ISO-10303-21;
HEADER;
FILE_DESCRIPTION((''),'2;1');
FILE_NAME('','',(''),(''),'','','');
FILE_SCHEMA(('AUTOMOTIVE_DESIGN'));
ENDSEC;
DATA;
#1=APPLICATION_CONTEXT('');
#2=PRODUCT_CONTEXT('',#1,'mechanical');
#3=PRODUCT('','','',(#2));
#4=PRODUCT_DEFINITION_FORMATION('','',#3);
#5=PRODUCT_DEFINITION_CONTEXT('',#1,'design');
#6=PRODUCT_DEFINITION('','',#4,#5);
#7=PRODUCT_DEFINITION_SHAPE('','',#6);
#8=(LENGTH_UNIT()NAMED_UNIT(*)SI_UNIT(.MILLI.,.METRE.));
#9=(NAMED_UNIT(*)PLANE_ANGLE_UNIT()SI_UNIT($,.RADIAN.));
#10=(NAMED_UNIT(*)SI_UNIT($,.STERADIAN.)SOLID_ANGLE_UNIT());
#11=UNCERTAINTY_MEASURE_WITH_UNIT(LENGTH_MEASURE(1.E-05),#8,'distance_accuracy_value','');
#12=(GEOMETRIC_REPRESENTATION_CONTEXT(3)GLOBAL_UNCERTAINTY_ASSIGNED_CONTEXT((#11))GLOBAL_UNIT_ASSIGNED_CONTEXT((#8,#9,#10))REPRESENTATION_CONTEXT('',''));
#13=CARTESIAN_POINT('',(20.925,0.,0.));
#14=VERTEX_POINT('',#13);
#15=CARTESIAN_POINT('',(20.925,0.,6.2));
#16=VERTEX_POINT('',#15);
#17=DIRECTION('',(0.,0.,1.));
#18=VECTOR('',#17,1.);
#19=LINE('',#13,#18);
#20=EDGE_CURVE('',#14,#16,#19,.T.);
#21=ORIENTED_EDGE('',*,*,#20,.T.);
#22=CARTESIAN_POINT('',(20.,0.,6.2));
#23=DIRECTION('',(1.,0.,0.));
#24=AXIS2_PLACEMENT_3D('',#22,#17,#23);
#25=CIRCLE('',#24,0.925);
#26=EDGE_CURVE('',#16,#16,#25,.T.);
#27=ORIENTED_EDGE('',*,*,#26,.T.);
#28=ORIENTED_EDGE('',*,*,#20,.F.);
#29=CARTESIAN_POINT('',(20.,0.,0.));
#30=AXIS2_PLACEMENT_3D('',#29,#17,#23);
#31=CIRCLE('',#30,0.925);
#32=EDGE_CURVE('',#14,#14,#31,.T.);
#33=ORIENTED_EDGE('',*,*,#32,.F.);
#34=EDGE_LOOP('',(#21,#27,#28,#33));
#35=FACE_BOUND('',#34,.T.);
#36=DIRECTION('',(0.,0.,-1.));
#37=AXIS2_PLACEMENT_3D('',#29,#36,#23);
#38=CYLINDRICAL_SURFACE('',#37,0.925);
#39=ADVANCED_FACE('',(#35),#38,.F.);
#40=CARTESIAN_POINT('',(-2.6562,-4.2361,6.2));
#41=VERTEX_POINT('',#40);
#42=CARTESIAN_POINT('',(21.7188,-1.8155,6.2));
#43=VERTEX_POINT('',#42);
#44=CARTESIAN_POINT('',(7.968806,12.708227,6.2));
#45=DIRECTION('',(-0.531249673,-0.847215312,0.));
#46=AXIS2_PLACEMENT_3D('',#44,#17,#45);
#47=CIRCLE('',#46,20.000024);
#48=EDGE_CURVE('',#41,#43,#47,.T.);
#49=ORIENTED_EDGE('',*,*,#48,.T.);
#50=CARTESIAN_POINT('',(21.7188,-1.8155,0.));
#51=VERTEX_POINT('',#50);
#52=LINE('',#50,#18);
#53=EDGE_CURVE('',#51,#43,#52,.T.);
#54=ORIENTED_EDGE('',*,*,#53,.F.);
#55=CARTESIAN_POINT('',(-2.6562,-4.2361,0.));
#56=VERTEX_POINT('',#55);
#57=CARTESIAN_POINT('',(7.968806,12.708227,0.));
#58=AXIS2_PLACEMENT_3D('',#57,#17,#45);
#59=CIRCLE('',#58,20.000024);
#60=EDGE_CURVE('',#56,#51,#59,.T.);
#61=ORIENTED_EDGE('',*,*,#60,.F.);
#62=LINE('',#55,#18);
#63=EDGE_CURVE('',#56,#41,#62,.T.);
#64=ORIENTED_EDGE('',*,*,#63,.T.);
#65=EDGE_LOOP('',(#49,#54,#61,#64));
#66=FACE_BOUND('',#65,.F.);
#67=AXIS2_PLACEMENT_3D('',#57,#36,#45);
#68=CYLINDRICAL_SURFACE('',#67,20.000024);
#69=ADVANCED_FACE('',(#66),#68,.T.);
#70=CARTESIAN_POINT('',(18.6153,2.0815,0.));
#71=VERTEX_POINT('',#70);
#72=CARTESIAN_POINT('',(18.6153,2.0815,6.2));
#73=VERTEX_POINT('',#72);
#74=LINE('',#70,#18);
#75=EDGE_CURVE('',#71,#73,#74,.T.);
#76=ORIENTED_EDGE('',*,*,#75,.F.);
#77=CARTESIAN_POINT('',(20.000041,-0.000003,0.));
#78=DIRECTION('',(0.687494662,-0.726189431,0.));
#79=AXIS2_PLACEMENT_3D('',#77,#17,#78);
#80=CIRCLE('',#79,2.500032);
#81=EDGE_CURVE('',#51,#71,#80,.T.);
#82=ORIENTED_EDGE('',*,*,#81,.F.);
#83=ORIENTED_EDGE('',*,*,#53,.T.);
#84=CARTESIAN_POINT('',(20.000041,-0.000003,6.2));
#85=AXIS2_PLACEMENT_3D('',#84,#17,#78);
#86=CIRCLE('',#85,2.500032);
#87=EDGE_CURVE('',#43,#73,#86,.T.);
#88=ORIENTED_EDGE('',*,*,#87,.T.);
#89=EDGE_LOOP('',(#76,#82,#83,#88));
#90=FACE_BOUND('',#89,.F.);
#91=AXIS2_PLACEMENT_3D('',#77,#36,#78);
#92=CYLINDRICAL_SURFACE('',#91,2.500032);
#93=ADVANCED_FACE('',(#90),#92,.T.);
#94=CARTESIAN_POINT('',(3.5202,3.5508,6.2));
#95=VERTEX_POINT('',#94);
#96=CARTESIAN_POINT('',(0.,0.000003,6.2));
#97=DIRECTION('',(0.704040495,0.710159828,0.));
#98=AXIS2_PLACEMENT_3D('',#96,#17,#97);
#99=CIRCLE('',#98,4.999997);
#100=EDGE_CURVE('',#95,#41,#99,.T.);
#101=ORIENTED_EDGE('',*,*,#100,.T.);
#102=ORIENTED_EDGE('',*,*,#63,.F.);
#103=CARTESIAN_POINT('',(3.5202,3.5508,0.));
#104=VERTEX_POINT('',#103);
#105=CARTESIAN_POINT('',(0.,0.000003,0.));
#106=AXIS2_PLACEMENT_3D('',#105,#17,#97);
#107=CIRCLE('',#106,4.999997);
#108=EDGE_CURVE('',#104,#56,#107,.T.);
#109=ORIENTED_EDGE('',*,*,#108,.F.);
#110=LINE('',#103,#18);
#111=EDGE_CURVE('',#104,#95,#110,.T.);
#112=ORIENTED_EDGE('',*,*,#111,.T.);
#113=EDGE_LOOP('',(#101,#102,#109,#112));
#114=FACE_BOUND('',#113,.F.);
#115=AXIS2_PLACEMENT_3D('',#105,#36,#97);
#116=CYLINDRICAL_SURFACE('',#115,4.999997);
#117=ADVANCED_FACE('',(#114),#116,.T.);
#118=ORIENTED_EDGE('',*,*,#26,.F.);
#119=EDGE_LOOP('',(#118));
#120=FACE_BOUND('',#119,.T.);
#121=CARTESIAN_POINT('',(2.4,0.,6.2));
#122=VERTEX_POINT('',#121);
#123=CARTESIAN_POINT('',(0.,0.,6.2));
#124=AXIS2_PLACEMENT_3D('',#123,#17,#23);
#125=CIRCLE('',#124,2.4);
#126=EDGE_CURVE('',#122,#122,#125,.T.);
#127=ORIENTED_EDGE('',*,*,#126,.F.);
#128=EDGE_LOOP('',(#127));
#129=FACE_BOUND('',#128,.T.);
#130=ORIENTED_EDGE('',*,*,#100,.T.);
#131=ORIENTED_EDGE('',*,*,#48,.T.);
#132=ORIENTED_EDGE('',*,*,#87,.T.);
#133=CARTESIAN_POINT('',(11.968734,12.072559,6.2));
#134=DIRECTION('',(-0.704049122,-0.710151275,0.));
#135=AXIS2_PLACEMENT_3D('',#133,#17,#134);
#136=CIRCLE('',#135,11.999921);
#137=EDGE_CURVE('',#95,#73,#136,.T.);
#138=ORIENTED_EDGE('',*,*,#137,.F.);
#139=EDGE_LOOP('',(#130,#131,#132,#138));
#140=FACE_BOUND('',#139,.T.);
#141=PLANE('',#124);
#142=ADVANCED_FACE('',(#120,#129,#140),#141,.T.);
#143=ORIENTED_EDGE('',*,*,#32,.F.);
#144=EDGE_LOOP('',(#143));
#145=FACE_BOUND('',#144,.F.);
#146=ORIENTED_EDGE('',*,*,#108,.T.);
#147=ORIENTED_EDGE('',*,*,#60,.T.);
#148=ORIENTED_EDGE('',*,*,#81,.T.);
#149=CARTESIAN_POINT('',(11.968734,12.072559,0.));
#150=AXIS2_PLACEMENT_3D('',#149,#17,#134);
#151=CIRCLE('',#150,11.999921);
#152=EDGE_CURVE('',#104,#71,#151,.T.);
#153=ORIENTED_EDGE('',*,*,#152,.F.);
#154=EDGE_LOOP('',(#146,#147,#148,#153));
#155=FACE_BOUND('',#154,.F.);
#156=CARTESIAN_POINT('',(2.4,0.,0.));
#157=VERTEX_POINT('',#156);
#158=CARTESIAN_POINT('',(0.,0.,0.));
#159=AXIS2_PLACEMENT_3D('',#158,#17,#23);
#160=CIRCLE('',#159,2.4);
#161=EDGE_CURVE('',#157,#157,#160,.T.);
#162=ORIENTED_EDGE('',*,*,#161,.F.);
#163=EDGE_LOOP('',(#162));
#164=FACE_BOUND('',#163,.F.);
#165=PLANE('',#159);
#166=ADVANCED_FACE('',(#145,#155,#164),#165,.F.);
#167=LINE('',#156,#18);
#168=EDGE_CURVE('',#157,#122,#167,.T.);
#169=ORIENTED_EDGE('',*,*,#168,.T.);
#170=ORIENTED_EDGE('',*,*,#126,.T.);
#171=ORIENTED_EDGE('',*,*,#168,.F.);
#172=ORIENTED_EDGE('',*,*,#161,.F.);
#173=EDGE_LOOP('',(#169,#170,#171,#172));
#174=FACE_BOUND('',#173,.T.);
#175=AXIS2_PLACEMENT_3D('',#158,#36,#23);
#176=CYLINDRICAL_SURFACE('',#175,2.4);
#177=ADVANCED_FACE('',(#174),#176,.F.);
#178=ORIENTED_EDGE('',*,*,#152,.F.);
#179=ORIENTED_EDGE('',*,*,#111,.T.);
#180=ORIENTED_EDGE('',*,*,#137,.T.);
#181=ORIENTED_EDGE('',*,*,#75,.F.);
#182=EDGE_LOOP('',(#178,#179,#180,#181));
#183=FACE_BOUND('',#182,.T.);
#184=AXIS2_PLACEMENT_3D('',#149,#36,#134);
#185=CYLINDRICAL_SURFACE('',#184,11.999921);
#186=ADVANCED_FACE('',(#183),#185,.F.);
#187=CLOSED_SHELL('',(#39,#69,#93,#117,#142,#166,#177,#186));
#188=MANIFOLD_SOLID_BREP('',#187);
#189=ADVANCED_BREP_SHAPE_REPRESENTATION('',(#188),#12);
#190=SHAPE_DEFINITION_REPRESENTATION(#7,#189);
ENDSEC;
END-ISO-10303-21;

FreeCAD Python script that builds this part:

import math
import FreeCAD as App
import Part
import Sketcher

V = App.Vector

doc = App.newDocument("Part")
body = doc.addObject("PartDesign::Body", "Body")

# Sketch on XY plane
sketch1 = body.newObject("Sketcher::SketchObject", "Sketch")
sketch1.AttachmentSupport = (doc.getObject("XY_Plane"), [""])
sketch1.MapMode = "FlatFace"
sketch1.addGeometry([
    Part.ArcOfCircle(Part.Circle(V(7.9688, 12.7082, 0), V(0, 0, 1), 19.999998), math.radians(-122.089955), math.radians(-46.567488)),  # 0
    Part.ArcOfCircle(Part.Circle(V(20, 0, 0), V(0, 0, 1), 2.500063), math.radians(-46.567247), math.radians(123.633496)),  # 1
    Part.ArcOfCircle(Part.Circle(V(11.9688, 12.0727, 0), V(0, 0, 1), 12.000068), math.radians(-134.752526), math.radians(-56.366743)),  # 2
    Part.ArcOfCircle(Part.Circle(V(0, 0, 0), V(0, 0, 1), 4.999999), math.radians(45.247948), math.radians(237.910683)),  # 3
    Part.Circle(V(0, 0, 0), V(0, 0, 1), 2.4),  # 4
    Part.Circle(V(20, 0, 0), V(0, 0, 1), 0.925),  # 5
], False)
sketch1.addConstraint([
    Sketcher.Constraint("Tangent", 0, 2, 1, 1),
    Sketcher.Constraint("Tangent", 1, 2, 2, 2),
    Sketcher.Constraint("Tangent", 2, 1, 3, 1),
    Sketcher.Constraint("Tangent", 3, 2, 0, 1),
    Sketcher.Constraint("Coincident", 3, 3, -1, 1),
    Sketcher.Constraint("Coincident", 4, 3, -1, 1),
    Sketcher.Constraint("Coincident", 5, 3, 1, 3),
    Sketcher.Constraint("PointOnObject", 1, 3, -1),
    Sketcher.Constraint("Radius", 0, 20.0),
    Sketcher.Constraint("Radius", 2, 12.0),
    Sketcher.Constraint("Radius", 3, 5.0),
    Sketcher.Constraint("Diameter", 4, 4.8),
    Sketcher.Constraint("Radius", 1, 2.5),
    Sketcher.Constraint("Diameter", 5, 1.85),
    Sketcher.Constraint("DistanceX", -1, 1, 1, 3, 20.0),
])
pad1 = body.newObject("PartDesign::Pad", "Pad")
pad1.Profile = sketch1
pad1.Length = 6.2

doc.recompute()
